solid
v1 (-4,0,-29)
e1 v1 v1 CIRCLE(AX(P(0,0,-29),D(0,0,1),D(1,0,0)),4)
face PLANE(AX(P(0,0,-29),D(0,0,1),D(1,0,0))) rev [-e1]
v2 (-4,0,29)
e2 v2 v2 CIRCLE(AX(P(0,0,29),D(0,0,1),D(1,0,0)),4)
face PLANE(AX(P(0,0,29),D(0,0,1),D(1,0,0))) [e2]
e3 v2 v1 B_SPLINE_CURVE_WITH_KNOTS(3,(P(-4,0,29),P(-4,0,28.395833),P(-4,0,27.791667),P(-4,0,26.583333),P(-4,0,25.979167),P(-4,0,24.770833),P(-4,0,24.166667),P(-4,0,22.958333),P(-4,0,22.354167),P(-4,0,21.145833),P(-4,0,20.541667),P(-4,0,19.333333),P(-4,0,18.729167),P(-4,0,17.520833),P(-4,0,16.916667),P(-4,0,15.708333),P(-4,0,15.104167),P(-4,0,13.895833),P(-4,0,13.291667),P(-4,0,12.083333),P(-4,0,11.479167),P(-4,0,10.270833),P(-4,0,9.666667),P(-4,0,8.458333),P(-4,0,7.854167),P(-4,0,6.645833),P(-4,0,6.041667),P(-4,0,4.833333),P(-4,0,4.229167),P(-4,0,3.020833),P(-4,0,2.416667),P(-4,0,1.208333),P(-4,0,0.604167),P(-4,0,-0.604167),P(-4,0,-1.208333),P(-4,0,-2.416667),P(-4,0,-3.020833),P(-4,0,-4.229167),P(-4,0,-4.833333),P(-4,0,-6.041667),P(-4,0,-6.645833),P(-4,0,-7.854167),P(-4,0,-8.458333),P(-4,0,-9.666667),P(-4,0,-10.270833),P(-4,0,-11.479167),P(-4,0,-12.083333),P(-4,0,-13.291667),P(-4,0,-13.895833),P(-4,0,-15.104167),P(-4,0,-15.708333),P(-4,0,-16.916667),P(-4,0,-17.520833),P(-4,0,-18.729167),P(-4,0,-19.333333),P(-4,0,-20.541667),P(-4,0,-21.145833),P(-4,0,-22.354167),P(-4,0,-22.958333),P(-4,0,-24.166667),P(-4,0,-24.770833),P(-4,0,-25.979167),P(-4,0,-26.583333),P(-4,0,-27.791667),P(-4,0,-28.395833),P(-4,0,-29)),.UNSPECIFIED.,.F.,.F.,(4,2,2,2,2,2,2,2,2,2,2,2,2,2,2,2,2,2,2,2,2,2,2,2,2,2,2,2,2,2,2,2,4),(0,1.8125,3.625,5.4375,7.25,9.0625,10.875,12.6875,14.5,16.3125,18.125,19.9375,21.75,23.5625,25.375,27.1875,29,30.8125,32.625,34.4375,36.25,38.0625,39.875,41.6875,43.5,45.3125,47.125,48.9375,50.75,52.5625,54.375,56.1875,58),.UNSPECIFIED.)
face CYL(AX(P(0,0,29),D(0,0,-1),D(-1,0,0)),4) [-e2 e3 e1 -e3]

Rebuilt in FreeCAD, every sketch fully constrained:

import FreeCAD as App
import Part
import Sketcher
from FreeCAD import Vector

doc = App.newDocument("Part")
body = doc.addObject("PartDesign::Body", "Body")

# Sketch on XY plane
sketch1 = body.newObject("Sketcher::SketchObject", "Sketch")
sketch1.AttachmentSupport = (doc.getObject("XY_Plane"), [""])
sketch1.MapMode = "FlatFace"
sketch1.addGeometry(Part.Circle(Vector(0, 0, 0), Vector(0, 0, 1), 4), False)
sketch1.addConstraint([
    Sketcher.Constraint("Coincident", 0, 3, -1, 1),
    Sketcher.Constraint("Diameter", 0, 8.0),
])
pad1 = body.newObject("PartDesign::Pad", "Pad")
pad1.Profile = sketch1
pad1.Length = 58
pad1.Midplane = True

doc.recompute()
